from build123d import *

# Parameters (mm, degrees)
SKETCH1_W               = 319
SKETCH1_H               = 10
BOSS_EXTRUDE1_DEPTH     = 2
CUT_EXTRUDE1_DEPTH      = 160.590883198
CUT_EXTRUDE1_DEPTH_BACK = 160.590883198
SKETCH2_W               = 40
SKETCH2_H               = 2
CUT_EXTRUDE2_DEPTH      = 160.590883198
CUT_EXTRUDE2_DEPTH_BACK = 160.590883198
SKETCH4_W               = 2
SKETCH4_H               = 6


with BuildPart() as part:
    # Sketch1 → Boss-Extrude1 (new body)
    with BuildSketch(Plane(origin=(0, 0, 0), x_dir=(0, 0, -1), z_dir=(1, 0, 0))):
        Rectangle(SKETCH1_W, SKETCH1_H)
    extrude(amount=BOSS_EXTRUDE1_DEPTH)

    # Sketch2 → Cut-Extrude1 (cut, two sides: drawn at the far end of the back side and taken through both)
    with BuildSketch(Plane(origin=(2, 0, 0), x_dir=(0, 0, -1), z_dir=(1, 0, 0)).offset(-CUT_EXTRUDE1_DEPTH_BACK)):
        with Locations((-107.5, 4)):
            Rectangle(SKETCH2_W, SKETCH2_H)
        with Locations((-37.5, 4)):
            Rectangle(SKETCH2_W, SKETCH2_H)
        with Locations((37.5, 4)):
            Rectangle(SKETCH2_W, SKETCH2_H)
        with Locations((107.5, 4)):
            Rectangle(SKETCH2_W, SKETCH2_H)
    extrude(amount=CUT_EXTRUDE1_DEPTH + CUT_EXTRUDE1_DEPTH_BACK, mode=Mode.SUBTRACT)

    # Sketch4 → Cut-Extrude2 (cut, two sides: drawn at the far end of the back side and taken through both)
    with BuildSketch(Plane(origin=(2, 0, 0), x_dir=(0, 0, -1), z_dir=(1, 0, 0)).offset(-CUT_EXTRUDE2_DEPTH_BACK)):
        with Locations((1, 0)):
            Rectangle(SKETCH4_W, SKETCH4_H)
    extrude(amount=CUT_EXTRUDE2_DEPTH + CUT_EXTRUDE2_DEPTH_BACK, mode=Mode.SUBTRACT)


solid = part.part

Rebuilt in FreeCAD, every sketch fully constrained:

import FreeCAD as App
import Part
import Sketcher

V = App.Vector


def add_polygon(sketch, points):
    """Adds a closed chain of lines whose ends are joined by coincident constraints."""
    first, n = sketch.GeometryCount, len(points)
    for a, b in zip(points, points[1:] + points[:1]):
        sketch.addGeometry(Part.LineSegment(App.Vector(*a, 0), App.Vector(*b, 0)), False)
    for i in range(n):
        sketch.addConstraint(Sketcher.Constraint("Coincident", first + i, 2, first + (i + 1) % n, 1))

doc = App.newDocument("Part")
params = doc.addObject("Spreadsheet::Sheet", "Params")
for row, (alias, value) in enumerate([
    ("sketch1_width", "10 mm"),
    ("sketch1_height", "319 mm"),
    ("pad1_length", "2 mm"),
    ("sketch2_width", "2 mm"),
    ("sketch2_height", "40 mm"),
    ("sketch3_width", "6 mm"),
    ("sketch3_height", "2 mm"),
], start=1):
    params.set(f"A{row}", alias)
    params.set(f"B{row}", "=" + value)
    params.setAlias(f"B{row}", alias)

body = doc.addObject("PartDesign::Body", "Body")

# Sketch on YZ plane
sketch1 = doc.addObject("Sketcher::SketchObject", "Sketch")
body.addObject(sketch1)
sketch1.AttachmentSupport = (doc.YZ_Plane, [""])
sketch1.MapMode = "FlatFace"
add_polygon(sketch1, [(5, 160), (-5, 160), (-5, -160), (5, -160)])  # lines 0-3
sketch1.addConstraint(Sketcher.Constraint("Horizontal", 0))
sketch1.addConstraint(Sketcher.Constraint("Vertical", 1))
sketch1.addConstraint(Sketcher.Constraint("Horizontal", 2))
sketch1.addConstraint(Sketcher.Constraint("Vertical", 3))
sketch1.addConstraint(Sketcher.Constraint("Symmetric", 0, 2, 2, 2, -1, 1))
sketch1.addConstraint(Sketcher.Constraint("DistanceX", 0, 2, 0, 1, 10.0))
sketch1.addConstraint(Sketcher.Constraint("DistanceY", 1, 2, 1, 1, 319.0))
sketch1.setExpression("Constraints[9]", "Params.sketch1_width")
sketch1.setExpression("Constraints[10]", "Params.sketch1_height")
pad1 = doc.addObject("PartDesign::Pad", "Pad")
body.addObject(pad1)
pad1.Profile = sketch1
pad1.setExpression("Length", "Params.pad1_length")

# Sketch on YZ plane
sketch2 = doc.addObject("Sketcher::SketchObject", "Sketch001")
body.addObject(sketch2)
sketch2.AttachmentSupport = (doc.YZ_Plane, [""])
sketch2.MapMode = "FlatFace"
sketch2.AttachmentOffset = App.Placement(V(0, 0, 2), App.Rotation())
add_polygon(sketch2, [(5, 127.5), (3, 127.5), (3, 87.5), (5, 87.5)])  # lines 0-3
add_polygon(sketch2, [(5, 57.5), (3, 57.5), (3, 17.5), (5, 17.5)])  # lines 4-7
add_polygon(sketch2, [(5, -17.5), (3, -17.5), (3, -57.5), (5, -57.5)])  # lines 8-11
add_polygon(sketch2, [(5, -87.5), (3, -87.5), (3, -127.5), (5, -127.5)])  # lines 12-15
sketch2.addConstraint(Sketcher.Constraint("Horizontal", 0))
sketch2.addConstraint(Sketcher.Constraint("Vertical", 1))
sketch2.addConstraint(Sketcher.Constraint("Horizontal", 2))
sketch2.addConstraint(Sketcher.Constraint("Vertical", 3))
sketch2.addConstraint(Sketcher.Constraint("Horizontal", 4))
sketch2.addConstraint(Sketcher.Constraint("Vertical", 5))
sketch2.addConstraint(Sketcher.Constraint("Horizontal", 6))
sketch2.addConstraint(Sketcher.Constraint("Vertical", 7))
sketch2.addConstraint(Sketcher.Constraint("Horizontal", 8))
sketch2.addConstraint(Sketcher.Constraint("Vertical", 9))
sketch2.addConstraint(Sketcher.Constraint("Horizontal", 10))
sketch2.addConstraint(Sketcher.Constraint("Vertical", 11))
sketch2.addConstraint(Sketcher.Constraint("Horizontal", 12))
sketch2.addConstraint(Sketcher.Constraint("Vertical", 13))
sketch2.addConstraint(Sketcher.Constraint("Horizontal", 14))
sketch2.addConstraint(Sketcher.Constraint("Vertical", 15))
sketch2.addConstraint(Sketcher.Constraint("Symmetric", 5, 2, 8, 2, -1))
sketch2.addConstraint(Sketcher.Constraint("Symmetric", 7, 2, 10, 2, -1))
sketch2.addConstraint(Sketcher.Constraint("Symmetric", 1, 2, 12, 2, -1))
sketch2.addConstraint(Sketcher.Constraint("Symmetric", 3, 2, 14, 2, -1))
sketch2.addConstraint(Sketcher.Constraint("Vertical", 1, 2, 4, 2))
sketch2.addConstraint(Sketcher.Constraint("Vertical", 3, 2, 6, 2))
sketch2.addConstraint(Sketcher.Constraint("Equal", 3, 5))
sketch2.addConstraint(Sketcher.Constraint("DistanceX", 0, 2, 0, 1, 2.0))
sketch2.addConstraint(Sketcher.Constraint("DistanceY", 1, 2, 1, 1, 40.0))
sketch2.addConstraint(Sketcher.Constraint("DistanceX", -1, 1, 0, 2, 3.0))
sketch2.addConstraint(Sketcher.Constraint("DistanceY", 4, 2, 1, 2, 30.0))
sketch2.addConstraint(Sketcher.Constraint("DistanceY", 8, 2, 5, 2, 35.0))
sketch2.setExpression("Constraints[39]", "Params.sketch2_width")
sketch2.setExpression("Constraints[40]", "Params.sketch2_height")
pocket1 = doc.addObject("PartDesign::Pocket", "Pocket")
body.addObject(pocket1)
pocket1.Profile = sketch2
pocket1.Type = "ThroughAll"
pocket1.Midplane = True

# Sketch on YZ plane
sketch3 = doc.addObject("Sketcher::SketchObject", "Sketch002")
body.addObject(sketch3)
sketch3.AttachmentSupport = (doc.YZ_Plane, [""])
sketch3.MapMode = "FlatFace"
sketch3.AttachmentOffset = App.Placement(V(0, 0, 2), App.Rotation())
add_polygon(sketch3, [(3, 0), (-3, 0), (-3, -2), (3, -2)])  # lines 0-3
sketch3.addConstraint(Sketcher.Constraint("Horizontal", 0))
sketch3.addConstraint(Sketcher.Constraint("Vertical", 1))
sketch3.addConstraint(Sketcher.Constraint("Horizontal", 2))
sketch3.addConstraint(Sketcher.Constraint("Vertical", 3))
sketch3.addConstraint(Sketcher.Constraint("Symmetric", 0, 2, 3, 2, -1, 1))
sketch3.addConstraint(Sketcher.Constraint("DistanceX", 0, 2, 0, 1, 6.0))
sketch3.addConstraint(Sketcher.Constraint("DistanceY", 1, 2, 1, 1, 2.0))
sketch3.setExpression("Constraints[9]", "Params.sketch3_width")
sketch3.setExpression("Constraints[10]", "Params.sketch3_height")
pocket2 = doc.addObject("PartDesign::Pocket", "Pocket001")
body.addObject(pocket2)
pocket2.Profile = sketch3
pocket2.Type = "ThroughAll"
pocket2.Midplane = True

doc.recompute()
